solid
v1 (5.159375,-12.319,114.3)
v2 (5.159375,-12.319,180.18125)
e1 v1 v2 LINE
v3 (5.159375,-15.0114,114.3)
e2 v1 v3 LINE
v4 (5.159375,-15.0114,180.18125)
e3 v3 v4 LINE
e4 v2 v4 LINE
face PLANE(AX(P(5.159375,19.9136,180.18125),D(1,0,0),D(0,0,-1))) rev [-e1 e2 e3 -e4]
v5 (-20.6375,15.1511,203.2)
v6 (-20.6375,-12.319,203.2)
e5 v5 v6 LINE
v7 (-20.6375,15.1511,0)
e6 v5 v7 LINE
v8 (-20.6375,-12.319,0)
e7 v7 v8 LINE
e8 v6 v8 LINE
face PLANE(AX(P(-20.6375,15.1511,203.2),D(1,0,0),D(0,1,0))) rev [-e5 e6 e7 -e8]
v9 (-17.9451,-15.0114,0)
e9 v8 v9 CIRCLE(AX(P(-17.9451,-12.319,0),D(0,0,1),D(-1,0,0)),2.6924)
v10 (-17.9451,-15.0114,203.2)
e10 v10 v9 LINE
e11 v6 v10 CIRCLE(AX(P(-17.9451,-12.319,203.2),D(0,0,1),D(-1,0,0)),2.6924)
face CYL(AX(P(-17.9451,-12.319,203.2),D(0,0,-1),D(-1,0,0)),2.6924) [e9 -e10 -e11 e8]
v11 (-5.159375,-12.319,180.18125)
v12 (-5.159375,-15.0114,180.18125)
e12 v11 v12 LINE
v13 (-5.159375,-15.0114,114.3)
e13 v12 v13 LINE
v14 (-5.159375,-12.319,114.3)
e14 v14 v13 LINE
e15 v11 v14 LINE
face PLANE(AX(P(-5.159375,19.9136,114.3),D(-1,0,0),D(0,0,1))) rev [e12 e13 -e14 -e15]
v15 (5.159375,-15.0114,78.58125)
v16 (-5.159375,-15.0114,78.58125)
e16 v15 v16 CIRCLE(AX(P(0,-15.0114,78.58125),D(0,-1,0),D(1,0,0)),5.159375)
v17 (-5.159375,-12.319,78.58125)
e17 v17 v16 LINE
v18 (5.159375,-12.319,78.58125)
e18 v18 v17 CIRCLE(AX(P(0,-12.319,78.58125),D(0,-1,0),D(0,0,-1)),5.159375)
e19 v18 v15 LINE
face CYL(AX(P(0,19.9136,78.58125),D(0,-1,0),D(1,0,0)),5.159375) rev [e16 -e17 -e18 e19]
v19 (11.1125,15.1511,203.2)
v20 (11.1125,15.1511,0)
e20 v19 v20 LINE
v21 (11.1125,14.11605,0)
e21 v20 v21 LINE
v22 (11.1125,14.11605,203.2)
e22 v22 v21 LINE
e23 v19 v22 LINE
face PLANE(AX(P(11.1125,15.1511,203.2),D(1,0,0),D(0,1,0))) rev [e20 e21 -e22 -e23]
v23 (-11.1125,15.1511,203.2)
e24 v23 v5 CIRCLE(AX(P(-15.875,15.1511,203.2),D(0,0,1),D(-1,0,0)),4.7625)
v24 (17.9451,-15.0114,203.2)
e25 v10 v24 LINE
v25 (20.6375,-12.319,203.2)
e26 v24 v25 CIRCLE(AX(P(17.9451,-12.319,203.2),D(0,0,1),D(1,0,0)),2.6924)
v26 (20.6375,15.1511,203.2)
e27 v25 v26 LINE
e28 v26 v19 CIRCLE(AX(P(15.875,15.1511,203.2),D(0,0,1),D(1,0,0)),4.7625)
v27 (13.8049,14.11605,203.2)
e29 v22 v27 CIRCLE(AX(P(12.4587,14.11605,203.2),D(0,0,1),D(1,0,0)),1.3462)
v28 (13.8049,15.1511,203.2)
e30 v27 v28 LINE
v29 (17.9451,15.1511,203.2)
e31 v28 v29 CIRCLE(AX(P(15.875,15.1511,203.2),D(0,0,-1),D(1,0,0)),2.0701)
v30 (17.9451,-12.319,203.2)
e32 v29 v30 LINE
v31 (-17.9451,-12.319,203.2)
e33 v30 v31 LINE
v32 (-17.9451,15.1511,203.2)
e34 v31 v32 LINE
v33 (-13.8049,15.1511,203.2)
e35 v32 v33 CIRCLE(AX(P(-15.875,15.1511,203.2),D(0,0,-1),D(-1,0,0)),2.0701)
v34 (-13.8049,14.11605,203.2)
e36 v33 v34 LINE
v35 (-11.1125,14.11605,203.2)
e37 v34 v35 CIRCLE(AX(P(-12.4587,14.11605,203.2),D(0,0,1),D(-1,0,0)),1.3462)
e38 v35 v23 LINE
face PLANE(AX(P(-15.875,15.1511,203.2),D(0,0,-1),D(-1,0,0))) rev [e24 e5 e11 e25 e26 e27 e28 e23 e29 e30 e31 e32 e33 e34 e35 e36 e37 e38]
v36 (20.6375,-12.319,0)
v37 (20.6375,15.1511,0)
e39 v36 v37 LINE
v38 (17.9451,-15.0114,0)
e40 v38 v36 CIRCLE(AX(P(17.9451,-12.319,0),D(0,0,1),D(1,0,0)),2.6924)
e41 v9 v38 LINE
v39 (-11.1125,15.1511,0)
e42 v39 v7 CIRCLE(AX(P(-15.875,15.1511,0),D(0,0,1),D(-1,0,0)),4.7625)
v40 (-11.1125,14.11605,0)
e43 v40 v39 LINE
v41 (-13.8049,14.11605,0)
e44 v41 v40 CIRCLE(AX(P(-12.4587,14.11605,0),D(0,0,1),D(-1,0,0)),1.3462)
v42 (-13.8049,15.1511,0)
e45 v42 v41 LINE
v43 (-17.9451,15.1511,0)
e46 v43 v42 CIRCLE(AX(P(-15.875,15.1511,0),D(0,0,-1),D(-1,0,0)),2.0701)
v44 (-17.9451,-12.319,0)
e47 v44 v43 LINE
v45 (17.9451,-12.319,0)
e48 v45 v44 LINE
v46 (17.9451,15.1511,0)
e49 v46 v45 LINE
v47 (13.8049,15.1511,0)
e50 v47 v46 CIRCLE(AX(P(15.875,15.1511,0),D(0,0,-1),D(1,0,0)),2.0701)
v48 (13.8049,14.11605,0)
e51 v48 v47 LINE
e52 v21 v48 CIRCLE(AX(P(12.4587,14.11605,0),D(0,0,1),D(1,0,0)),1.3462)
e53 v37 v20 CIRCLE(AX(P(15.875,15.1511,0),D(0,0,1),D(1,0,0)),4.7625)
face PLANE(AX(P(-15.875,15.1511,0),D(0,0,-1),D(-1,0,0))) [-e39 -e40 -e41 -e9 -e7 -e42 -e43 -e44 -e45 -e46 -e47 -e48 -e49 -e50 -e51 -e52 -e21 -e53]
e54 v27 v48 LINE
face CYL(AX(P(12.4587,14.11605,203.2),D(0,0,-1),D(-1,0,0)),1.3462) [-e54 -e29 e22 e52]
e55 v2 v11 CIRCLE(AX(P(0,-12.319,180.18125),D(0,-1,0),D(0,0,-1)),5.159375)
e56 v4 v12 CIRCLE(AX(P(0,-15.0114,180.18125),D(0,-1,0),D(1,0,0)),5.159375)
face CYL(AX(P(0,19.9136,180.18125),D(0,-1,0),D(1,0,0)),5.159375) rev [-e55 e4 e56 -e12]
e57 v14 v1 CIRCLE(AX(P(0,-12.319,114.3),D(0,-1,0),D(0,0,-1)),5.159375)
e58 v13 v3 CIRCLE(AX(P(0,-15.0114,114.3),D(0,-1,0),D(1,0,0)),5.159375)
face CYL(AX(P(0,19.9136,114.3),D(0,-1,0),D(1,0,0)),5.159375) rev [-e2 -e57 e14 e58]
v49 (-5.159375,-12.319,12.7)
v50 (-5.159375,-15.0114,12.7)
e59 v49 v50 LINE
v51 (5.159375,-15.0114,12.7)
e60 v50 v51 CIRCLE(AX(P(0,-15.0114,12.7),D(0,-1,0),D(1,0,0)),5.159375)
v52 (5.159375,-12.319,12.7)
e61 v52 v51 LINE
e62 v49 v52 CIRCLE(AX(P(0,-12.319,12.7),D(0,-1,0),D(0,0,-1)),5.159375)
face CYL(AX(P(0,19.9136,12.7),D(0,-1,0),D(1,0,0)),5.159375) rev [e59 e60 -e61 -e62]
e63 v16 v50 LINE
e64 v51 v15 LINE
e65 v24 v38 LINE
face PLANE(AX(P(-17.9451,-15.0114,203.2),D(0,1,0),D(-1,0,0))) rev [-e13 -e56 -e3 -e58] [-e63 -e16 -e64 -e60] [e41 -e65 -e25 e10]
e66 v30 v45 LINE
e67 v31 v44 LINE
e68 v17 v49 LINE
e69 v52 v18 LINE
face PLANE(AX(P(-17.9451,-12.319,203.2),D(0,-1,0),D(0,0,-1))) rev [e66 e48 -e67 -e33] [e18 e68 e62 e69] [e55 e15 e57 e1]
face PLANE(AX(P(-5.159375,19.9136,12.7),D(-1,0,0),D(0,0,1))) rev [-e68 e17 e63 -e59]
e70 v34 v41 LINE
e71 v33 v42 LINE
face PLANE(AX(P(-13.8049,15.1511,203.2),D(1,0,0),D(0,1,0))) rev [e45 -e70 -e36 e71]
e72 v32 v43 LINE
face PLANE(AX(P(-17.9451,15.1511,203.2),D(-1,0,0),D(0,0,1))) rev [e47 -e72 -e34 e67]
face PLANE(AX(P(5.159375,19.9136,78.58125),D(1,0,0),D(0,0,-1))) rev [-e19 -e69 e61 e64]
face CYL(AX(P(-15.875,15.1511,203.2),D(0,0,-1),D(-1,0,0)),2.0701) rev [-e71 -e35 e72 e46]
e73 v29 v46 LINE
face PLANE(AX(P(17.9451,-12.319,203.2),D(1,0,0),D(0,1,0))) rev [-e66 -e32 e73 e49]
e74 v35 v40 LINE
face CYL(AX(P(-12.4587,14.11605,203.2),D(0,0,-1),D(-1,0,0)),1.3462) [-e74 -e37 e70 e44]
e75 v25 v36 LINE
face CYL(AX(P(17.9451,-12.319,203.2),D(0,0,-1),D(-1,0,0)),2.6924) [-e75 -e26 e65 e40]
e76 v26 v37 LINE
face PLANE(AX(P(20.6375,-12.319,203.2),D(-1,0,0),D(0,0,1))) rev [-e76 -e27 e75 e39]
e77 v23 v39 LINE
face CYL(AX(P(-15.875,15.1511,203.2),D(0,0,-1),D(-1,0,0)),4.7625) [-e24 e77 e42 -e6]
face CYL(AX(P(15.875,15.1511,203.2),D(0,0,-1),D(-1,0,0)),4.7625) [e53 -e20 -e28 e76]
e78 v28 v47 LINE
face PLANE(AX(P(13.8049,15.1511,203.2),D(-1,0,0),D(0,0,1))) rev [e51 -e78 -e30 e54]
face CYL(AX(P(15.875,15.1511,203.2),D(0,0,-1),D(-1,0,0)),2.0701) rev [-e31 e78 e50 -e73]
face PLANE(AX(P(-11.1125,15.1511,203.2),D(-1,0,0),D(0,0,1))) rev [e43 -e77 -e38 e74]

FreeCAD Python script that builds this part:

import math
import FreeCAD as App
import Part
import Sketcher
from FreeCAD import Vector
Q = App.Units.Quantity

doc = App.newDocument("Part")
body = doc.addObject("PartDesign::Body", "Body")

sketch1 = doc.addObject("Sketcher::SketchObject", "Sketch")
body.addObject(sketch1)
sketch1.AttachmentSupport = (doc.XY_Plane, [""])
sketch1.MapMode = "FlatFace"
sketch1.addGeometry(Part.LineSegment(Vector(-20.6, 15.2, 0), Vector(-20.6, -12.3, 0)), False)
sketch1.addGeometry(Part.ArcOfCircle(Part.Circle(Vector(-17.9, -12.3, 0), Vector(0, 0, 1), 2.7), math.radians(180), math.radians(270)), False)
sketch1.addGeometry(Part.LineSegment(Vector(-17.9, -15, 0), Vector(17.9, -15, 0)), False)
sketch1.addGeometry(Part.ArcOfCircle(Part.Circle(Vector(17.9, -12.3, 0), Vector(0, 0, 1), 2.7), math.radians(-90), math.radians(0)), False)
sketch1.addGeometry(Part.LineSegment(Vector(20.6, -12.3, 0), Vector(20.6, 15.2, 0)), False)
sketch1.addGeometry(Part.ArcOfCircle(Part.Circle(Vector(15.9, 15.2, 0), Vector(0, 0, 1), 4.8), math.radians(0), math.radians(180)), False)
sketch1.addGeometry(Part.LineSegment(Vector(11.1, 15.2, 0), Vector(11.1, 14.1, 0)), False)
sketch1.addGeometry(Part.ArcOfCircle(Part.Circle(Vector(12.5, 14.1, 0), Vector(0, 0, 1), 1.3), math.radians(180), math.radians(360)), False)
sketch1.addGeometry(Part.LineSegment(Vector(13.8, 14.1, 0), Vector(13.8, 15.2, 0)), False)
sketch1.addGeometry(Part.ArcOfCircle(Part.Circle(Vector(15.9, 15.2, 0), Vector(0, 0, 1), 2.1), math.radians(0), math.radians(180)), False)
sketch1.addGeometry(Part.LineSegment(Vector(17.9, 15.2, 0), Vector(17.9, -12.3, 0)), False)
sketch1.addGeometry(Part.LineSegment(Vector(17.9, -12.3, 0), Vector(-17.9, -12.3, 0)), False)
sketch1.addGeometry(Part.LineSegment(Vector(-17.9, -12.3, 0), Vector(-17.9, 15.2, 0)), False)
sketch1.addGeometry(Part.ArcOfCircle(Part.Circle(Vector(-15.9, 15.2, 0), Vector(0, 0, 1), 2.1), math.radians(0), math.radians(180)), False)
sketch1.addGeometry(Part.LineSegment(Vector(-13.8, 15.2, 0), Vector(-13.8, 14.1, 0)), False)
sketch1.addGeometry(Part.ArcOfCircle(Part.Circle(Vector(-12.5, 14.1, 0), Vector(0, 0, 1), 1.3), math.radians(180), math.radians(360)), False)
sketch1.addGeometry(Part.LineSegment(Vector(-11.1, 14.1, 0), Vector(-11.1, 15.2, 0)), False)
sketch1.addGeometry(Part.ArcOfCircle(Part.Circle(Vector(-15.9, 15.2, 0), Vector(0, 0, 1), 4.8), math.radians(0), math.radians(180)), False)
sketch1.addConstraint(Sketcher.Constraint("Tangent", 0, 2, 1, 1))
sketch1.addConstraint(Sketcher.Constraint("Tangent", 1, 2, 2, 1))
sketch1.addConstraint(Sketcher.Constraint("Tangent", 2, 2, 3, 1))
sketch1.addConstraint(Sketcher.Constraint("Tangent", 3, 2, 4, 1))
sketch1.addConstraint(Sketcher.Constraint("Tangent", 4, 2, 5, 1))
sketch1.addConstraint(Sketcher.Constraint("Tangent", 5, 2, 6, 1))
sketch1.addConstraint(Sketcher.Constraint("Tangent", 6, 2, 7, 1))
sketch1.addConstraint(Sketcher.Constraint("Tangent", 7, 2, 8, 1))
sketch1.addConstraint(Sketcher.Constraint("Tangent", 8, 2, 9, 2))
sketch1.addConstraint(Sketcher.Constraint("Tangent", 9, 1, 10, 1))
sketch1.addConstraint(Sketcher.Constraint("Coincident", 10, 2, 11, 1))
sketch1.addConstraint(Sketcher.Constraint("Coincident", 11, 2, 12, 1))
sketch1.addConstraint(Sketcher.Constraint("Tangent", 12, 2, 13, 2))
sketch1.addConstraint(Sketcher.Constraint("Tangent", 13, 1, 14, 1))
sketch1.addConstraint(Sketcher.Constraint("Tangent", 14, 2, 15, 1))
sketch1.addConstraint(Sketcher.Constraint("Tangent", 15, 2, 16, 1))
sketch1.addConstraint(Sketcher.Constraint("Tangent", 16, 2, 17, 1))
sketch1.addConstraint(Sketcher.Constraint("Tangent", 17, 2, 0, 1))
sketch1.addConstraint(Sketcher.Constraint("Vertical", 0))
sketch1.addConstraint(Sketcher.Constraint("Horizontal", 2))
sketch1.addConstraint(Sketcher.Constraint("Vertical", 4))
sketch1.addConstraint(Sketcher.Constraint("Vertical", 6))
sketch1.addConstraint(Sketcher.Constraint("Vertical", 8))
sketch1.addConstraint(Sketcher.Constraint("Vertical", 10))
sketch1.addConstraint(Sketcher.Constraint("Horizontal", 11))
sketch1.addConstraint(Sketcher.Constraint("Vertical", 12))
sketch1.addConstraint(Sketcher.Constraint("Vertical", 14))
sketch1.addConstraint(Sketcher.Constraint("Vertical", 16))
sketch1.addConstraint(Sketcher.Constraint("Coincident", 9, 3, 5, 3))
sketch1.addConstraint(Sketcher.Constraint("Coincident", 17, 3, 13, 3))
sketch1.addConstraint(Sketcher.Constraint("Coincident", 10, 2, 3, 3))
sketch1.addConstraint(Sketcher.Constraint("Coincident", 11, 2, 1, 3))
sketch1.addConstraint(Sketcher.Constraint("Equal", 9, 13))
sketch1.addConstraint(Sketcher.Constraint("Symmetric", 5, 3, 13, 3, -2))
sketch1.addConstraint(Sketcher.Constraint("Horizontal", 7, 3, 15, 3))
sketch1.addConstraint(Sketcher.Constraint("Radius", 1, Q("0.106 in")))
sketch1.addConstraint(Sketcher.Constraint("Radius", 5, Q("0.1875 in")))
sketch1.addConstraint(Sketcher.Constraint("DistanceX", 2, 1, 2, 2, Q("1.413 in")))
sketch1.addConstraint(Sketcher.Constraint("DistanceY", 0, 2, 0, 1, Q("1.0815 in")))
sketch1.addConstraint(Sketcher.Constraint("DistanceY", 1, 3, -1, 1, Q("0.485 in")))
sketch1.addConstraint(Sketcher.Constraint("DistanceY", 6, 2, 6, 1, Q("1.03505 mm")))
pad1 = doc.addObject("PartDesign::Pad", "Pad")
body.addObject(pad1)
pad1.Profile = sketch1
pad1.Length = Q("8 in")

sketch2 = doc.addObject("Sketcher::SketchObject", "Sketch001")
body.addObject(sketch2)
sketch2.AttachmentSupport = (doc.XZ_Plane, [""])
sketch2.MapMode = "FlatFace"
sketch2.AttachmentOffset = App.Placement(Vector(0, 0, 0.591 * 25.4), App.Rotation())
sketch2.addGeometry(Part.LineSegment(Vector(5, 13, 0), Vector(5, 79, 0)), False)
sketch2.addGeometry(Part.ArcOfCircle(Part.Circle(Vector(0, 79, 0), Vector(0, 0, 1), 5), math.radians(0), math.radians(180)), False)
sketch2.addGeometry(Part.LineSegment(Vector(-5, 79, 0), Vector(-5, 13, 0)), False)
sketch2.addGeometry(Part.ArcOfCircle(Part.Circle(Vector(0, 13, 0), Vector(0, 0, 1), 5), math.radians(180), math.radians(360)), False)
sketch2.addConstraint(Sketcher.Constraint("Tangent", 0, 2, 1, 1))
sketch2.addConstraint(Sketcher.Constraint("Tangent", 1, 2, 2, 1))
sketch2.addConstraint(Sketcher.Constraint("Tangent", 2, 2, 3, 1))
sketch2.addConstraint(Sketcher.Constraint("Tangent", 3, 2, 0, 1))
sketch2.addConstraint(Sketcher.Constraint("Vertical", 0))
sketch2.addConstraint(Sketcher.Constraint("Vertical", 2))
sketch2.addConstraint(Sketcher.Constraint("PointOnObject", 1, 3, -2))
sketch2.addConstraint(Sketcher.Constraint("Radius", 1, Q("0.203125 in")))
sketch2.addConstraint(Sketcher.Constraint("DistanceY", -1, 1, 3, 3, Q("0.5 in")))
sketch2.addConstraint(Sketcher.Constraint("DistanceY", 0, 1, 0, 2, Q("2.59375 in")))
pocket1 = doc.addObject("PartDesign::Pocket", "Pocket")
body.addObject(pocket1)
pocket1.Profile = sketch2
pocket1.Type = "ThroughAll"
doc.recompute()

linearpattern = doc.addObject("PartDesign::LinearPattern", "LinearPattern")
body.addObject(linearpattern)
linearpattern.Originals = [pocket1]
linearpattern.Direction = (doc.Z_Axis, [""])
linearpattern.Mode = "offset"
linearpattern.Offset = Q("4 in")
linearpattern.Occurrences = 2
body.Tip = linearpattern

doc.recompute()
